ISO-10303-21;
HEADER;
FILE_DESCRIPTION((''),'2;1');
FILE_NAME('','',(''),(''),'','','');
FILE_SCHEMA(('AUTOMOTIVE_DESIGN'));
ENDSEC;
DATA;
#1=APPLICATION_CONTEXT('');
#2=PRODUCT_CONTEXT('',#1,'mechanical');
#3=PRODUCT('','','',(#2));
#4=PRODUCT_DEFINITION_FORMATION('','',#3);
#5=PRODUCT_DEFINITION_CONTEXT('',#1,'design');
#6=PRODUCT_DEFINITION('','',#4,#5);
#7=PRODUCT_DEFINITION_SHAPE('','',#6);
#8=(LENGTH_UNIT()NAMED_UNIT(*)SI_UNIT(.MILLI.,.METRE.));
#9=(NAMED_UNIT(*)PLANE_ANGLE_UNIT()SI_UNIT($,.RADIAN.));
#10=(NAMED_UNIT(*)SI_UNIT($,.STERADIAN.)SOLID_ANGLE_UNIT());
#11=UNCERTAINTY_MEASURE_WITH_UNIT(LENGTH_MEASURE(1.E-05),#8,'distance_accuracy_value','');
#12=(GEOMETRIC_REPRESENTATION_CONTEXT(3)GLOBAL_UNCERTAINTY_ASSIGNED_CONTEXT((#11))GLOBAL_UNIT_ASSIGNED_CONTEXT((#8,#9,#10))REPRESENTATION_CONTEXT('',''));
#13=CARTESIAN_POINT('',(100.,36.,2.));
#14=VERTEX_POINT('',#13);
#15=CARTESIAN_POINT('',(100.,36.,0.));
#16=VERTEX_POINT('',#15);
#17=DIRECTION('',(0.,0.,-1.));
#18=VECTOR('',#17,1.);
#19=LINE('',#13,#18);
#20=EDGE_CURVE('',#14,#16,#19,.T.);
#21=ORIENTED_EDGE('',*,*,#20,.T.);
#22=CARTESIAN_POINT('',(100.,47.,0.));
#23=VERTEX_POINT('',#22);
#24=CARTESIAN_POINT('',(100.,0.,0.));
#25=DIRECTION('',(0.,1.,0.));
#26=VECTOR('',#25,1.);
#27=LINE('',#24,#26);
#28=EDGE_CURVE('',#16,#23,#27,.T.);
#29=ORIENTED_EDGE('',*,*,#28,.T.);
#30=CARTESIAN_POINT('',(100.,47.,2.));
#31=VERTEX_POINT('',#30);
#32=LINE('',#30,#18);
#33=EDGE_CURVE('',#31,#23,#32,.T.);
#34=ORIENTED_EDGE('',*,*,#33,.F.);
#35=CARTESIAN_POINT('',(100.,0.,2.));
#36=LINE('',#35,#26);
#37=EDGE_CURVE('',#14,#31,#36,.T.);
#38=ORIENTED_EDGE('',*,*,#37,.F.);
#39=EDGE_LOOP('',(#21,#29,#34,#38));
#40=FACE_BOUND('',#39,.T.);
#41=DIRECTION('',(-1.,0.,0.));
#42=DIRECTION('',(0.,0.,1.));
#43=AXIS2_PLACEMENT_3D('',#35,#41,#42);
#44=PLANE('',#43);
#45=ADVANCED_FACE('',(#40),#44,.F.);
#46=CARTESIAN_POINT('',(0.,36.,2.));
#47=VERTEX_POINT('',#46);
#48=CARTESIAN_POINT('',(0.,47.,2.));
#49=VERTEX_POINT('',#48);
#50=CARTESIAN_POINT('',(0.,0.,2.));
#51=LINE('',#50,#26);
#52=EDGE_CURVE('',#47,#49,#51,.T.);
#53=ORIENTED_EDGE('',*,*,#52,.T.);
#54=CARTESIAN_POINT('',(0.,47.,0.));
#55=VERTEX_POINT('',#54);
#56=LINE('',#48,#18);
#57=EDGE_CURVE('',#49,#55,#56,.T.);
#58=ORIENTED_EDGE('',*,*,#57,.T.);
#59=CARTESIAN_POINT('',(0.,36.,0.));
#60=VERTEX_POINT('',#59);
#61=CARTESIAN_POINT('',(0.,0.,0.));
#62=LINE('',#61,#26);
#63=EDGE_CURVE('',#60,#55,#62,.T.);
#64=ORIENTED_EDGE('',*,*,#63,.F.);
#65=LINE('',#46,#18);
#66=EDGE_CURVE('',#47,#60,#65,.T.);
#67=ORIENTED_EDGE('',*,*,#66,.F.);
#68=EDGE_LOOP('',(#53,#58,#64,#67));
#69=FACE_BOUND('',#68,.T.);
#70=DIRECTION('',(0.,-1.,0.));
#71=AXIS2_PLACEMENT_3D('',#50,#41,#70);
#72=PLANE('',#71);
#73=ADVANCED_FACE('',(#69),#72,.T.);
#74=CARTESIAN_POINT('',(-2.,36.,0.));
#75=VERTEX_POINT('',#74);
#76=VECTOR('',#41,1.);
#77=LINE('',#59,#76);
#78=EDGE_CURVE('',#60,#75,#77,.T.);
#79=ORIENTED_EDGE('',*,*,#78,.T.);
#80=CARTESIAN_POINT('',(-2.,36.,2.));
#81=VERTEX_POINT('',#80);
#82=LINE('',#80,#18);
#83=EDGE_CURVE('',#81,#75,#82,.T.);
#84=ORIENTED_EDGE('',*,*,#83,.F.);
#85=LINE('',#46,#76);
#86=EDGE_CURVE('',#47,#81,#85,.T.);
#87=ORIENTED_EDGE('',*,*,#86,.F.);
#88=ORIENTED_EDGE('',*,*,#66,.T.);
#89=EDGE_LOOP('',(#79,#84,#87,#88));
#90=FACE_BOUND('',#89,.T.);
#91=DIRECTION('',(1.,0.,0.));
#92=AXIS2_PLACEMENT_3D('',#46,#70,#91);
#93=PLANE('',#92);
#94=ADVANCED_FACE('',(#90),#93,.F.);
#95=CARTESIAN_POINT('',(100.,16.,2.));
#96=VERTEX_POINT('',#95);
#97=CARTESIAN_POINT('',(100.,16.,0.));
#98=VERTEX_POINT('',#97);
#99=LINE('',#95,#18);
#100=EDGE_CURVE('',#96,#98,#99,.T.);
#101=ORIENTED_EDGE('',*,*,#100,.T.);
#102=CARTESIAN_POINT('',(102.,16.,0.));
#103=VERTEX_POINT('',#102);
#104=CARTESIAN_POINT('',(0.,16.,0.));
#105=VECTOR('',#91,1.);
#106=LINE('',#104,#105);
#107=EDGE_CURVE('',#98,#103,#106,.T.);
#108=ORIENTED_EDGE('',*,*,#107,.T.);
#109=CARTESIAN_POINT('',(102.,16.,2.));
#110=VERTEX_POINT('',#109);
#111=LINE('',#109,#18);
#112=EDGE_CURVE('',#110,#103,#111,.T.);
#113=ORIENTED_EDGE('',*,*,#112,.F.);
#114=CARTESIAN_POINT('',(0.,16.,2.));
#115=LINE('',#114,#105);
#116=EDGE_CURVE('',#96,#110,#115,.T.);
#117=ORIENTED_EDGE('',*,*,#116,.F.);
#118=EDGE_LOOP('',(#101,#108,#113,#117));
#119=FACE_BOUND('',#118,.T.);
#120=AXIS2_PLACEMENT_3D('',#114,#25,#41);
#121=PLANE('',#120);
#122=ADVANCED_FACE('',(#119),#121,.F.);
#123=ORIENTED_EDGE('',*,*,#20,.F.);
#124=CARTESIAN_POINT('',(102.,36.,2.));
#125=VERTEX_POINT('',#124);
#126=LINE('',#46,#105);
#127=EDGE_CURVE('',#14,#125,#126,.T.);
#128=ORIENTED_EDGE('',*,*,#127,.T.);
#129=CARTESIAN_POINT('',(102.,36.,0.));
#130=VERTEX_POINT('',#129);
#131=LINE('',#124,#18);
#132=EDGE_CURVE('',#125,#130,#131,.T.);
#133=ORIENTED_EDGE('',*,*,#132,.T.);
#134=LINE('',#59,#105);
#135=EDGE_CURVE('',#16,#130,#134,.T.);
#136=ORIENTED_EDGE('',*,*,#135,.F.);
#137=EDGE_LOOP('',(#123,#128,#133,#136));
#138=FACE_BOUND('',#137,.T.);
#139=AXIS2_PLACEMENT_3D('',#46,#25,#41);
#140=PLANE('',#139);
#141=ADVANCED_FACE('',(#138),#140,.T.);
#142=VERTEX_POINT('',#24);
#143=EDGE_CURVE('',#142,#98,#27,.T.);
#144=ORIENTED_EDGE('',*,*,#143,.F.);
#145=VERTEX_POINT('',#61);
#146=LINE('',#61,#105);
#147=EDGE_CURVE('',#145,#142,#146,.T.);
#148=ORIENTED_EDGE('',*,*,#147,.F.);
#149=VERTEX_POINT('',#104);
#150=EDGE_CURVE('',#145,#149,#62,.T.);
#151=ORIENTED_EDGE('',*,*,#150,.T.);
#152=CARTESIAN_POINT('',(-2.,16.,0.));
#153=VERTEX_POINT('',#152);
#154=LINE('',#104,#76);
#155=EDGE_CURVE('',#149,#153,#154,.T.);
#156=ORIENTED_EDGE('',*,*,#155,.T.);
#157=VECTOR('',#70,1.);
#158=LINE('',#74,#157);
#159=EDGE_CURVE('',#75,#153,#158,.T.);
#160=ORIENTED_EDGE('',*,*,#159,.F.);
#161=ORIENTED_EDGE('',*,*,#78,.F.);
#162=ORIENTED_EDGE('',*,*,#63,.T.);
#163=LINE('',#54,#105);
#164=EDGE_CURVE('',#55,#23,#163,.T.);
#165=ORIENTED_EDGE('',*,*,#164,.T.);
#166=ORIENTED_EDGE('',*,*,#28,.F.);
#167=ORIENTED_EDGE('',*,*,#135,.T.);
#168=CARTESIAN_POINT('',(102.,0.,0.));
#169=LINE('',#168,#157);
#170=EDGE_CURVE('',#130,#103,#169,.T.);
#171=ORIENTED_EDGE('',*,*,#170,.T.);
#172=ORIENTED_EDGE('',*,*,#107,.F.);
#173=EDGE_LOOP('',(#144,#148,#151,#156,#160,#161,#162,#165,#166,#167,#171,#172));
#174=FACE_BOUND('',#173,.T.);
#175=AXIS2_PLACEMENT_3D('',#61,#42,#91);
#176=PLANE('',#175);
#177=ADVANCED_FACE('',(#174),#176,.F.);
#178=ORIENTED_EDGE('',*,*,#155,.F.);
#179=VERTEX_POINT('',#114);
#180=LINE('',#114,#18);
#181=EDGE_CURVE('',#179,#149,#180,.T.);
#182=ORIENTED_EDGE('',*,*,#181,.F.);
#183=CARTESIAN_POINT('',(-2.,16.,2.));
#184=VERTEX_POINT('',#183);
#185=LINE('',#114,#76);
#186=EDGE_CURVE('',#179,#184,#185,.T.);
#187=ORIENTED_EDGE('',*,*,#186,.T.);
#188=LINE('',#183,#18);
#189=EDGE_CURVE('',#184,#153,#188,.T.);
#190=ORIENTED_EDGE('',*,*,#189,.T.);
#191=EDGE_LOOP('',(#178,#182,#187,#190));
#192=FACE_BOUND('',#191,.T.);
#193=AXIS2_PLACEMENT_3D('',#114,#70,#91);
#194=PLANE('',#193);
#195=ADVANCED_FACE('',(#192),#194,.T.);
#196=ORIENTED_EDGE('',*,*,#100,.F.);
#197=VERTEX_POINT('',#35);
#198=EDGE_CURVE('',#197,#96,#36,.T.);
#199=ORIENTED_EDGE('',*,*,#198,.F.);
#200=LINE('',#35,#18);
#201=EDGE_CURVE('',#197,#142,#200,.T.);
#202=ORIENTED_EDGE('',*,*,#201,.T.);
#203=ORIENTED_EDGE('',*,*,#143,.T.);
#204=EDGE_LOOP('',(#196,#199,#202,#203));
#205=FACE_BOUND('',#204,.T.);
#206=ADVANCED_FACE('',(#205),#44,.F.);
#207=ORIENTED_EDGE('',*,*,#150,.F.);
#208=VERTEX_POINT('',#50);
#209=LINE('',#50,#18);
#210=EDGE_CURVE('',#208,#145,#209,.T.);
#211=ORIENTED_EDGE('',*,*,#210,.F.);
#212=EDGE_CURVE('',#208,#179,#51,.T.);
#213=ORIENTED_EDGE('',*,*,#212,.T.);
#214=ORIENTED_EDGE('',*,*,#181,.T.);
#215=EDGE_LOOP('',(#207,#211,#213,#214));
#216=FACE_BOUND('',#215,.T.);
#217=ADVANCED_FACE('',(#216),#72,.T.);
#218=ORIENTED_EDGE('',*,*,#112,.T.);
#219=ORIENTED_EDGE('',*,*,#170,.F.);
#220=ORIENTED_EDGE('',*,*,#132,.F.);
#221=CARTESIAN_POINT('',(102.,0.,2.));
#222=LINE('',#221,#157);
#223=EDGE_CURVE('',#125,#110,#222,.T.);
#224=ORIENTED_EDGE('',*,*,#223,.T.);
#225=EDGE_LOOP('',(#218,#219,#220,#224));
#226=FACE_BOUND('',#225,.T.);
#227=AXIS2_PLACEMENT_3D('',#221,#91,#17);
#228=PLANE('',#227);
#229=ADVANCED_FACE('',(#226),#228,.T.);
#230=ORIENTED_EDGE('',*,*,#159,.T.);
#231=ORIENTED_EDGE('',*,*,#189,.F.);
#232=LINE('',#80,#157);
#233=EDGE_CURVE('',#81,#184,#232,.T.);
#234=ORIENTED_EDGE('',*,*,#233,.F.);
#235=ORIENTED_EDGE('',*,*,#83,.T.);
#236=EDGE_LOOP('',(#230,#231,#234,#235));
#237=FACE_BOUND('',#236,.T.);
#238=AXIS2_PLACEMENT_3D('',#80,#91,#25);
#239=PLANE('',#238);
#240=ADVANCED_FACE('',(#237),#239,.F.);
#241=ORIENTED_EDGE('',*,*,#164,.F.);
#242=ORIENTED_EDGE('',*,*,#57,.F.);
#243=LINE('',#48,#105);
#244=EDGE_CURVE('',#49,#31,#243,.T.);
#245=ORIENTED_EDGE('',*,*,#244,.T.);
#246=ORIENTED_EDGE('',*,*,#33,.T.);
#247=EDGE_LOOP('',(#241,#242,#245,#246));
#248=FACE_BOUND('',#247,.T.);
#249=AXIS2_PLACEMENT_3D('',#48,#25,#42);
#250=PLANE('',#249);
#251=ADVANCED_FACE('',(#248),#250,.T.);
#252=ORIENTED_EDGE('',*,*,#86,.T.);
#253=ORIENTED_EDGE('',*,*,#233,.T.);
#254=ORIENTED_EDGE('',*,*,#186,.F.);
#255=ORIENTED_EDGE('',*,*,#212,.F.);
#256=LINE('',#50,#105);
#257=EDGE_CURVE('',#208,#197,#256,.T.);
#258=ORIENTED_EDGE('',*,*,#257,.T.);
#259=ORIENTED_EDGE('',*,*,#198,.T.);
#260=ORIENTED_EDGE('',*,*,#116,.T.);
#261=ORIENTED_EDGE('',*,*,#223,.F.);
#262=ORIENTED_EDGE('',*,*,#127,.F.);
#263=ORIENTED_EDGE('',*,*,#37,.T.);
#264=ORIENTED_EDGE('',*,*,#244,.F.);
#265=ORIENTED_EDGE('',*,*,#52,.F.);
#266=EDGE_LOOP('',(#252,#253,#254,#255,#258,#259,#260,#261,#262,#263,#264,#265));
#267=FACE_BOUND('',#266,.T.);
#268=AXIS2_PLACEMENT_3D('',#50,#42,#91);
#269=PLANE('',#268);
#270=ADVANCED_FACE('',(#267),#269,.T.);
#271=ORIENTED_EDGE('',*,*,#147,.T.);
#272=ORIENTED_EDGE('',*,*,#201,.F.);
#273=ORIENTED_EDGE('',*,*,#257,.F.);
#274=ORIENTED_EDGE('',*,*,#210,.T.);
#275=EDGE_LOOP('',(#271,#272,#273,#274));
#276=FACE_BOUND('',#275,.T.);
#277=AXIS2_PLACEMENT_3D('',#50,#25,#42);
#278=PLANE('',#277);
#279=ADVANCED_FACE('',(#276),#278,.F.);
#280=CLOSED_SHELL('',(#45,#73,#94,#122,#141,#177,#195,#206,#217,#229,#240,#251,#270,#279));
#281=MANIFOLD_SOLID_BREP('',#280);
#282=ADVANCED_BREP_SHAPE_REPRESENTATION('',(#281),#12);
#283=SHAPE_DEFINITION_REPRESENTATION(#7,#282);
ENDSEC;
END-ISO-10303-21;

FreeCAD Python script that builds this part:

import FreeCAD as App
import Part
import Sketcher

doc = App.newDocument("Part")
body = doc.addObject("PartDesign::Body", "Body")

sketch1 = body.newObject("Sketcher::SketchObject", "Sketch")
sketch1.AttachmentSupport = (doc.getObject("XY_Plane"), [""])
sketch1.MapMode = "FlatFace"
sketch1.addGeometry([
    Part.LineSegment(App.Vector(100, 16, 0), App.Vector(102, 16, 0)),
    Part.LineSegment(App.Vector(102, 16, 0), App.Vector(102, 36, 0)),
    Part.LineSegment(App.Vector(102, 36, 0), App.Vector(100, 36, 0)),
    Part.LineSegment(App.Vector(100, 36, 0), App.Vector(100, 47, 0)),
    Part.LineSegment(App.Vector(100, 47, 0), App.Vector(0, 47, 0)),
    Part.LineSegment(App.Vector(0, 47, 0), App.Vector(0, 36, 0)),
    Part.LineSegment(App.Vector(0, 36, 0), App.Vector(-2, 36, 0)),
    Part.LineSegment(App.Vector(-2, 36, 0), App.Vector(-2, 16, 0)),
    Part.LineSegment(App.Vector(-2, 16, 0), App.Vector(0, 16, 0)),
    Part.LineSegment(App.Vector(0, 16, 0), App.Vector(0, 0, 0)),
    Part.LineSegment(App.Vector(0, 0, 0), App.Vector(100, 0, 0)),
    Part.LineSegment(App.Vector(100, 0, 0), App.Vector(100, 16, 0)),
], False)
sketch1.addConstraint([
    Sketcher.Constraint("Coincident", 0, 2, 1, 1),
    Sketcher.Constraint("Coincident", 1, 2, 2, 1),
    Sketcher.Constraint("Coincident", 2, 2, 3, 1),
    Sketcher.Constraint("Coincident", 3, 2, 4, 1),
    Sketcher.Constraint("Coincident", 4, 2, 5, 1),
    Sketcher.Constraint("Coincident", 5, 2, 6, 1),
    Sketcher.Constraint("Coincident", 6, 2, 7, 1),
    Sketcher.Constraint("Coincident", 7, 2, 8, 1),
    Sketcher.Constraint("Coincident", 8, 2, 9, 1),
    Sketcher.Constraint("Coincident", 9, 2, 10, 1),
    Sketcher.Constraint("Coincident", 10, 2, 11, 1),
    Sketcher.Constraint("Coincident", 11, 2, 0, 1),
    Sketcher.Constraint("Horizontal", 0),
    Sketcher.Constraint("Vertical", 1),
    Sketcher.Constraint("Horizontal", 2),
    Sketcher.Constraint("Vertical", 3),
    Sketcher.Constraint("Horizontal", 4),
    Sketcher.Constraint("Vertical", 5),
    Sketcher.Constraint("Horizontal", 6),
    Sketcher.Constraint("Vertical", 7),
    Sketcher.Constraint("Horizontal", 8),
    Sketcher.Constraint("Vertical", 9),
    Sketcher.Constraint("Horizontal", 10),
    Sketcher.Constraint("Vertical", 11),
    Sketcher.Constraint("Coincident", 9, 2, -1, 1),
    Sketcher.Constraint("PointOnObject", 4, 2, -2),
    Sketcher.Constraint("Horizontal", 2, 2, 5, 2),
    Sketcher.Constraint("Horizontal", 0, 2, 7, 2),
    Sketcher.Constraint("Vertical", 3, 2, 10, 2),
    Sketcher.Constraint("Equal", 2, 6),
    Sketcher.Constraint("DistanceX", 0, 1, 0, 2, 2.0),
    Sketcher.Constraint("DistanceX", 4, 2, 4, 1, 100.0),
    Sketcher.Constraint("DistanceY", 1, 1, 1, 2, 20.0),
    Sketcher.Constraint("DistanceY", 3, 1, 3, 2, 11.0),
    Sketcher.Constraint("DistanceY", 9, 2, 9, 1, 16.0),
])
pad1 = body.newObject("PartDesign::Pad", "Pad")
pad1.Profile = sketch1
pad1.Length = 2

doc.recompute()
